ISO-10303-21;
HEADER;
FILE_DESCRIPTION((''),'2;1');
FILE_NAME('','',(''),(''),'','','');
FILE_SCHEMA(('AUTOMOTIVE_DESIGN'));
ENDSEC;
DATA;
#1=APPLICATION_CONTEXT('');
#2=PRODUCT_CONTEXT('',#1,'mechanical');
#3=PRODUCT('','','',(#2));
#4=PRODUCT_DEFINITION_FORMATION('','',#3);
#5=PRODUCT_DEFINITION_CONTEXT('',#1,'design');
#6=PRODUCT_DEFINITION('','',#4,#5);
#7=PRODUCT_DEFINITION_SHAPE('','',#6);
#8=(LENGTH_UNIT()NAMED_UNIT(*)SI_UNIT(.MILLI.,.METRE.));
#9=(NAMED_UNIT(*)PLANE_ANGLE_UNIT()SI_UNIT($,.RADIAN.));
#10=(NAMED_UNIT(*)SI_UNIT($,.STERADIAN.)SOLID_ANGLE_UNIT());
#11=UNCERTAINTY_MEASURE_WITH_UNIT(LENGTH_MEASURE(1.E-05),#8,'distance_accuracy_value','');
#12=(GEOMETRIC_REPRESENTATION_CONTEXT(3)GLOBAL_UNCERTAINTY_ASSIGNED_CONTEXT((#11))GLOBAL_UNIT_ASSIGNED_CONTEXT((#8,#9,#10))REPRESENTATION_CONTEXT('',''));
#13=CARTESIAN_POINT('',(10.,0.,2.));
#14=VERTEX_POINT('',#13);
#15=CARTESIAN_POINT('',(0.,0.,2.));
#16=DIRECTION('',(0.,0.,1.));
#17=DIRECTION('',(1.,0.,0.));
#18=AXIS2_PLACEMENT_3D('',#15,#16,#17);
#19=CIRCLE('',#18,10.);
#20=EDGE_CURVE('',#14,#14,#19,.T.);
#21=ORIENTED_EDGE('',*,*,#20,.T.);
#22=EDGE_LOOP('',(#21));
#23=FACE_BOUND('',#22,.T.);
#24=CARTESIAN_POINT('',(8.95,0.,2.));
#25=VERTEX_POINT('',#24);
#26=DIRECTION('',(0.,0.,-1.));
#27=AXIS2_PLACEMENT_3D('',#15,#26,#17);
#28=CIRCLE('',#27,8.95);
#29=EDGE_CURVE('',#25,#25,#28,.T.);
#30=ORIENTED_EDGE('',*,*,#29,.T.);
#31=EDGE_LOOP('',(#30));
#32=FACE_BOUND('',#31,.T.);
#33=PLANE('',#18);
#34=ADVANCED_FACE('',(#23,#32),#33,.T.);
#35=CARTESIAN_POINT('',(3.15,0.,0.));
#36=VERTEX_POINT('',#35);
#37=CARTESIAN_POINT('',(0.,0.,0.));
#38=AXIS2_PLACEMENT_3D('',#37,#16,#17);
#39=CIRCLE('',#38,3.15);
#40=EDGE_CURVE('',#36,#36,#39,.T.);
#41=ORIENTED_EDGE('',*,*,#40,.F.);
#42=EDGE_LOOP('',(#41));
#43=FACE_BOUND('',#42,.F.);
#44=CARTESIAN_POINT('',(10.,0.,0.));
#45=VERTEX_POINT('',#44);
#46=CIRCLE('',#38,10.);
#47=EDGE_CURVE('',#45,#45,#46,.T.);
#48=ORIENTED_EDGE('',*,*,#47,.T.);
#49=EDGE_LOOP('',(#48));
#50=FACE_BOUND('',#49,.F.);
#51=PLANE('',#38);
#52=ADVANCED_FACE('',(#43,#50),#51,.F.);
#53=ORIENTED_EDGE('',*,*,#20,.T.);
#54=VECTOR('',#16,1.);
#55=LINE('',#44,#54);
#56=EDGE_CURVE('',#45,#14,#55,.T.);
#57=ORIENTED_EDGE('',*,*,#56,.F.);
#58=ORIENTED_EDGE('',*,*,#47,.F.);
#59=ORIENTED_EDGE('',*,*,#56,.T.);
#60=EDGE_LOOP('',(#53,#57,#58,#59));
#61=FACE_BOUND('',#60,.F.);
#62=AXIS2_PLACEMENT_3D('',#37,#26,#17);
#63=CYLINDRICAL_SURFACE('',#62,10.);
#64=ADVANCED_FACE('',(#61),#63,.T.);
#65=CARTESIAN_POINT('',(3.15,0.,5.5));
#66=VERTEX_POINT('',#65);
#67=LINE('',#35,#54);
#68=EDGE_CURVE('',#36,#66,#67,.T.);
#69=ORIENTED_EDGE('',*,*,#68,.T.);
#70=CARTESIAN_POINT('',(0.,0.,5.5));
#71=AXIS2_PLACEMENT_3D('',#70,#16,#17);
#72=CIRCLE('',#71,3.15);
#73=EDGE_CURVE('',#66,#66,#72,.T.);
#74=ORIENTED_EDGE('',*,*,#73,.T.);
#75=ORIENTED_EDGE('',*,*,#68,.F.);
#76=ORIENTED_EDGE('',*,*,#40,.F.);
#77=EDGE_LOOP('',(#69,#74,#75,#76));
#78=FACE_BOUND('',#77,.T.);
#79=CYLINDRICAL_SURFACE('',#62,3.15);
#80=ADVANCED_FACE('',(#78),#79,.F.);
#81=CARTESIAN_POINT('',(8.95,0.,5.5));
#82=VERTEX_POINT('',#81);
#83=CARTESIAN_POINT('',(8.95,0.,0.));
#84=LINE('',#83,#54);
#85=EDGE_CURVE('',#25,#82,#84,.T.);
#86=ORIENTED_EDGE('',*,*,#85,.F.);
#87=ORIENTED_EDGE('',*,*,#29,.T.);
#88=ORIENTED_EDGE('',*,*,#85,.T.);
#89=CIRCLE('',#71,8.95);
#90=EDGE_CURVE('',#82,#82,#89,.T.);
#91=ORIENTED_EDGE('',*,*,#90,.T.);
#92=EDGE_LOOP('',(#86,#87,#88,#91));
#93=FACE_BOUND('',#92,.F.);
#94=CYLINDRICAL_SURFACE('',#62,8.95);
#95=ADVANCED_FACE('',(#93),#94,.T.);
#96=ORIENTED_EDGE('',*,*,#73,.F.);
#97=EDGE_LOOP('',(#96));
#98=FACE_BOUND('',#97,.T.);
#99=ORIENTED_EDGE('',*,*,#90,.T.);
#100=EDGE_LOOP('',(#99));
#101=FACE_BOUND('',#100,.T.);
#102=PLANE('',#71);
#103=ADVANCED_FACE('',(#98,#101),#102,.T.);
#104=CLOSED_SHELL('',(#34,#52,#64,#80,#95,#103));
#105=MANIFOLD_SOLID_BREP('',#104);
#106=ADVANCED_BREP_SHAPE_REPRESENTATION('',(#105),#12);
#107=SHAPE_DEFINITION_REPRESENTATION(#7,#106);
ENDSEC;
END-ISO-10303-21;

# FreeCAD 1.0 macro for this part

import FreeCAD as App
import Part
import Sketcher
from FreeCAD import Vector
Q = App.Units.Quantity

doc = App.newDocument("Part")
body = doc.addObject("PartDesign::Body", "Body")

# Sketch on XY plane
sketch1 = body.newObject("Sketcher::SketchObject", "Sketch")
sketch1.AttachmentSupport = (doc.getObject("XY_Plane"), [""])
sketch1.MapMode = "FlatFace"
sketch1.addGeometry([
    Part.Circle(Vector(0, 0, 0), Vector(0, 0, 1), 10),
    Part.Circle(Vector(0, 0, 0), Vector(0, 0, 1), 3.15),
], False)
sketch1.addConstraint([
    Sketcher.Constraint("Coincident", 0, 3, -1, 1),
    Sketcher.Constraint("Coincident", 1, 3, -1, 1),
    Sketcher.Constraint("Diameter", 0, Q("20 mm")),
    Sketcher.Constraint("Diameter", 1, Q("6.3 mm")),
])
pad1 = body.newObject("PartDesign::Pad", "Pad")
pad1.Profile = sketch1
pad1.Length = 2

# Sketch on XY plane
sketch2 = body.newObject("Sketcher::SketchObject", "Sketch001")
sketch2.AttachmentSupport = (doc.getObject("XY_Plane"), [""])
sketch2.MapMode = "FlatFace"
sketch2.addGeometry([
    Part.Circle(Vector(0, 0, 0), Vector(0, 0, 1), 8.95),
    Part.Circle(Vector(0, 0, 0), Vector(0, 0, 1), 3.15),
], False)
sketch2.addConstraint([
    Sketcher.Constraint("Coincident", 0, 3, -1, 1),
    Sketcher.Constraint("Coincident", 1, 3, -1, 1),
    Sketcher.Constraint("Diameter", 0, Q("17.9 mm")),
    Sketcher.Constraint("Diameter", 1, Q("6.3 mm")),
])
pad2 = body.newObject("PartDesign::Pad", "Pad001")
pad2.Profile = sketch2
pad2.Length = 5.5

doc.recompute()
